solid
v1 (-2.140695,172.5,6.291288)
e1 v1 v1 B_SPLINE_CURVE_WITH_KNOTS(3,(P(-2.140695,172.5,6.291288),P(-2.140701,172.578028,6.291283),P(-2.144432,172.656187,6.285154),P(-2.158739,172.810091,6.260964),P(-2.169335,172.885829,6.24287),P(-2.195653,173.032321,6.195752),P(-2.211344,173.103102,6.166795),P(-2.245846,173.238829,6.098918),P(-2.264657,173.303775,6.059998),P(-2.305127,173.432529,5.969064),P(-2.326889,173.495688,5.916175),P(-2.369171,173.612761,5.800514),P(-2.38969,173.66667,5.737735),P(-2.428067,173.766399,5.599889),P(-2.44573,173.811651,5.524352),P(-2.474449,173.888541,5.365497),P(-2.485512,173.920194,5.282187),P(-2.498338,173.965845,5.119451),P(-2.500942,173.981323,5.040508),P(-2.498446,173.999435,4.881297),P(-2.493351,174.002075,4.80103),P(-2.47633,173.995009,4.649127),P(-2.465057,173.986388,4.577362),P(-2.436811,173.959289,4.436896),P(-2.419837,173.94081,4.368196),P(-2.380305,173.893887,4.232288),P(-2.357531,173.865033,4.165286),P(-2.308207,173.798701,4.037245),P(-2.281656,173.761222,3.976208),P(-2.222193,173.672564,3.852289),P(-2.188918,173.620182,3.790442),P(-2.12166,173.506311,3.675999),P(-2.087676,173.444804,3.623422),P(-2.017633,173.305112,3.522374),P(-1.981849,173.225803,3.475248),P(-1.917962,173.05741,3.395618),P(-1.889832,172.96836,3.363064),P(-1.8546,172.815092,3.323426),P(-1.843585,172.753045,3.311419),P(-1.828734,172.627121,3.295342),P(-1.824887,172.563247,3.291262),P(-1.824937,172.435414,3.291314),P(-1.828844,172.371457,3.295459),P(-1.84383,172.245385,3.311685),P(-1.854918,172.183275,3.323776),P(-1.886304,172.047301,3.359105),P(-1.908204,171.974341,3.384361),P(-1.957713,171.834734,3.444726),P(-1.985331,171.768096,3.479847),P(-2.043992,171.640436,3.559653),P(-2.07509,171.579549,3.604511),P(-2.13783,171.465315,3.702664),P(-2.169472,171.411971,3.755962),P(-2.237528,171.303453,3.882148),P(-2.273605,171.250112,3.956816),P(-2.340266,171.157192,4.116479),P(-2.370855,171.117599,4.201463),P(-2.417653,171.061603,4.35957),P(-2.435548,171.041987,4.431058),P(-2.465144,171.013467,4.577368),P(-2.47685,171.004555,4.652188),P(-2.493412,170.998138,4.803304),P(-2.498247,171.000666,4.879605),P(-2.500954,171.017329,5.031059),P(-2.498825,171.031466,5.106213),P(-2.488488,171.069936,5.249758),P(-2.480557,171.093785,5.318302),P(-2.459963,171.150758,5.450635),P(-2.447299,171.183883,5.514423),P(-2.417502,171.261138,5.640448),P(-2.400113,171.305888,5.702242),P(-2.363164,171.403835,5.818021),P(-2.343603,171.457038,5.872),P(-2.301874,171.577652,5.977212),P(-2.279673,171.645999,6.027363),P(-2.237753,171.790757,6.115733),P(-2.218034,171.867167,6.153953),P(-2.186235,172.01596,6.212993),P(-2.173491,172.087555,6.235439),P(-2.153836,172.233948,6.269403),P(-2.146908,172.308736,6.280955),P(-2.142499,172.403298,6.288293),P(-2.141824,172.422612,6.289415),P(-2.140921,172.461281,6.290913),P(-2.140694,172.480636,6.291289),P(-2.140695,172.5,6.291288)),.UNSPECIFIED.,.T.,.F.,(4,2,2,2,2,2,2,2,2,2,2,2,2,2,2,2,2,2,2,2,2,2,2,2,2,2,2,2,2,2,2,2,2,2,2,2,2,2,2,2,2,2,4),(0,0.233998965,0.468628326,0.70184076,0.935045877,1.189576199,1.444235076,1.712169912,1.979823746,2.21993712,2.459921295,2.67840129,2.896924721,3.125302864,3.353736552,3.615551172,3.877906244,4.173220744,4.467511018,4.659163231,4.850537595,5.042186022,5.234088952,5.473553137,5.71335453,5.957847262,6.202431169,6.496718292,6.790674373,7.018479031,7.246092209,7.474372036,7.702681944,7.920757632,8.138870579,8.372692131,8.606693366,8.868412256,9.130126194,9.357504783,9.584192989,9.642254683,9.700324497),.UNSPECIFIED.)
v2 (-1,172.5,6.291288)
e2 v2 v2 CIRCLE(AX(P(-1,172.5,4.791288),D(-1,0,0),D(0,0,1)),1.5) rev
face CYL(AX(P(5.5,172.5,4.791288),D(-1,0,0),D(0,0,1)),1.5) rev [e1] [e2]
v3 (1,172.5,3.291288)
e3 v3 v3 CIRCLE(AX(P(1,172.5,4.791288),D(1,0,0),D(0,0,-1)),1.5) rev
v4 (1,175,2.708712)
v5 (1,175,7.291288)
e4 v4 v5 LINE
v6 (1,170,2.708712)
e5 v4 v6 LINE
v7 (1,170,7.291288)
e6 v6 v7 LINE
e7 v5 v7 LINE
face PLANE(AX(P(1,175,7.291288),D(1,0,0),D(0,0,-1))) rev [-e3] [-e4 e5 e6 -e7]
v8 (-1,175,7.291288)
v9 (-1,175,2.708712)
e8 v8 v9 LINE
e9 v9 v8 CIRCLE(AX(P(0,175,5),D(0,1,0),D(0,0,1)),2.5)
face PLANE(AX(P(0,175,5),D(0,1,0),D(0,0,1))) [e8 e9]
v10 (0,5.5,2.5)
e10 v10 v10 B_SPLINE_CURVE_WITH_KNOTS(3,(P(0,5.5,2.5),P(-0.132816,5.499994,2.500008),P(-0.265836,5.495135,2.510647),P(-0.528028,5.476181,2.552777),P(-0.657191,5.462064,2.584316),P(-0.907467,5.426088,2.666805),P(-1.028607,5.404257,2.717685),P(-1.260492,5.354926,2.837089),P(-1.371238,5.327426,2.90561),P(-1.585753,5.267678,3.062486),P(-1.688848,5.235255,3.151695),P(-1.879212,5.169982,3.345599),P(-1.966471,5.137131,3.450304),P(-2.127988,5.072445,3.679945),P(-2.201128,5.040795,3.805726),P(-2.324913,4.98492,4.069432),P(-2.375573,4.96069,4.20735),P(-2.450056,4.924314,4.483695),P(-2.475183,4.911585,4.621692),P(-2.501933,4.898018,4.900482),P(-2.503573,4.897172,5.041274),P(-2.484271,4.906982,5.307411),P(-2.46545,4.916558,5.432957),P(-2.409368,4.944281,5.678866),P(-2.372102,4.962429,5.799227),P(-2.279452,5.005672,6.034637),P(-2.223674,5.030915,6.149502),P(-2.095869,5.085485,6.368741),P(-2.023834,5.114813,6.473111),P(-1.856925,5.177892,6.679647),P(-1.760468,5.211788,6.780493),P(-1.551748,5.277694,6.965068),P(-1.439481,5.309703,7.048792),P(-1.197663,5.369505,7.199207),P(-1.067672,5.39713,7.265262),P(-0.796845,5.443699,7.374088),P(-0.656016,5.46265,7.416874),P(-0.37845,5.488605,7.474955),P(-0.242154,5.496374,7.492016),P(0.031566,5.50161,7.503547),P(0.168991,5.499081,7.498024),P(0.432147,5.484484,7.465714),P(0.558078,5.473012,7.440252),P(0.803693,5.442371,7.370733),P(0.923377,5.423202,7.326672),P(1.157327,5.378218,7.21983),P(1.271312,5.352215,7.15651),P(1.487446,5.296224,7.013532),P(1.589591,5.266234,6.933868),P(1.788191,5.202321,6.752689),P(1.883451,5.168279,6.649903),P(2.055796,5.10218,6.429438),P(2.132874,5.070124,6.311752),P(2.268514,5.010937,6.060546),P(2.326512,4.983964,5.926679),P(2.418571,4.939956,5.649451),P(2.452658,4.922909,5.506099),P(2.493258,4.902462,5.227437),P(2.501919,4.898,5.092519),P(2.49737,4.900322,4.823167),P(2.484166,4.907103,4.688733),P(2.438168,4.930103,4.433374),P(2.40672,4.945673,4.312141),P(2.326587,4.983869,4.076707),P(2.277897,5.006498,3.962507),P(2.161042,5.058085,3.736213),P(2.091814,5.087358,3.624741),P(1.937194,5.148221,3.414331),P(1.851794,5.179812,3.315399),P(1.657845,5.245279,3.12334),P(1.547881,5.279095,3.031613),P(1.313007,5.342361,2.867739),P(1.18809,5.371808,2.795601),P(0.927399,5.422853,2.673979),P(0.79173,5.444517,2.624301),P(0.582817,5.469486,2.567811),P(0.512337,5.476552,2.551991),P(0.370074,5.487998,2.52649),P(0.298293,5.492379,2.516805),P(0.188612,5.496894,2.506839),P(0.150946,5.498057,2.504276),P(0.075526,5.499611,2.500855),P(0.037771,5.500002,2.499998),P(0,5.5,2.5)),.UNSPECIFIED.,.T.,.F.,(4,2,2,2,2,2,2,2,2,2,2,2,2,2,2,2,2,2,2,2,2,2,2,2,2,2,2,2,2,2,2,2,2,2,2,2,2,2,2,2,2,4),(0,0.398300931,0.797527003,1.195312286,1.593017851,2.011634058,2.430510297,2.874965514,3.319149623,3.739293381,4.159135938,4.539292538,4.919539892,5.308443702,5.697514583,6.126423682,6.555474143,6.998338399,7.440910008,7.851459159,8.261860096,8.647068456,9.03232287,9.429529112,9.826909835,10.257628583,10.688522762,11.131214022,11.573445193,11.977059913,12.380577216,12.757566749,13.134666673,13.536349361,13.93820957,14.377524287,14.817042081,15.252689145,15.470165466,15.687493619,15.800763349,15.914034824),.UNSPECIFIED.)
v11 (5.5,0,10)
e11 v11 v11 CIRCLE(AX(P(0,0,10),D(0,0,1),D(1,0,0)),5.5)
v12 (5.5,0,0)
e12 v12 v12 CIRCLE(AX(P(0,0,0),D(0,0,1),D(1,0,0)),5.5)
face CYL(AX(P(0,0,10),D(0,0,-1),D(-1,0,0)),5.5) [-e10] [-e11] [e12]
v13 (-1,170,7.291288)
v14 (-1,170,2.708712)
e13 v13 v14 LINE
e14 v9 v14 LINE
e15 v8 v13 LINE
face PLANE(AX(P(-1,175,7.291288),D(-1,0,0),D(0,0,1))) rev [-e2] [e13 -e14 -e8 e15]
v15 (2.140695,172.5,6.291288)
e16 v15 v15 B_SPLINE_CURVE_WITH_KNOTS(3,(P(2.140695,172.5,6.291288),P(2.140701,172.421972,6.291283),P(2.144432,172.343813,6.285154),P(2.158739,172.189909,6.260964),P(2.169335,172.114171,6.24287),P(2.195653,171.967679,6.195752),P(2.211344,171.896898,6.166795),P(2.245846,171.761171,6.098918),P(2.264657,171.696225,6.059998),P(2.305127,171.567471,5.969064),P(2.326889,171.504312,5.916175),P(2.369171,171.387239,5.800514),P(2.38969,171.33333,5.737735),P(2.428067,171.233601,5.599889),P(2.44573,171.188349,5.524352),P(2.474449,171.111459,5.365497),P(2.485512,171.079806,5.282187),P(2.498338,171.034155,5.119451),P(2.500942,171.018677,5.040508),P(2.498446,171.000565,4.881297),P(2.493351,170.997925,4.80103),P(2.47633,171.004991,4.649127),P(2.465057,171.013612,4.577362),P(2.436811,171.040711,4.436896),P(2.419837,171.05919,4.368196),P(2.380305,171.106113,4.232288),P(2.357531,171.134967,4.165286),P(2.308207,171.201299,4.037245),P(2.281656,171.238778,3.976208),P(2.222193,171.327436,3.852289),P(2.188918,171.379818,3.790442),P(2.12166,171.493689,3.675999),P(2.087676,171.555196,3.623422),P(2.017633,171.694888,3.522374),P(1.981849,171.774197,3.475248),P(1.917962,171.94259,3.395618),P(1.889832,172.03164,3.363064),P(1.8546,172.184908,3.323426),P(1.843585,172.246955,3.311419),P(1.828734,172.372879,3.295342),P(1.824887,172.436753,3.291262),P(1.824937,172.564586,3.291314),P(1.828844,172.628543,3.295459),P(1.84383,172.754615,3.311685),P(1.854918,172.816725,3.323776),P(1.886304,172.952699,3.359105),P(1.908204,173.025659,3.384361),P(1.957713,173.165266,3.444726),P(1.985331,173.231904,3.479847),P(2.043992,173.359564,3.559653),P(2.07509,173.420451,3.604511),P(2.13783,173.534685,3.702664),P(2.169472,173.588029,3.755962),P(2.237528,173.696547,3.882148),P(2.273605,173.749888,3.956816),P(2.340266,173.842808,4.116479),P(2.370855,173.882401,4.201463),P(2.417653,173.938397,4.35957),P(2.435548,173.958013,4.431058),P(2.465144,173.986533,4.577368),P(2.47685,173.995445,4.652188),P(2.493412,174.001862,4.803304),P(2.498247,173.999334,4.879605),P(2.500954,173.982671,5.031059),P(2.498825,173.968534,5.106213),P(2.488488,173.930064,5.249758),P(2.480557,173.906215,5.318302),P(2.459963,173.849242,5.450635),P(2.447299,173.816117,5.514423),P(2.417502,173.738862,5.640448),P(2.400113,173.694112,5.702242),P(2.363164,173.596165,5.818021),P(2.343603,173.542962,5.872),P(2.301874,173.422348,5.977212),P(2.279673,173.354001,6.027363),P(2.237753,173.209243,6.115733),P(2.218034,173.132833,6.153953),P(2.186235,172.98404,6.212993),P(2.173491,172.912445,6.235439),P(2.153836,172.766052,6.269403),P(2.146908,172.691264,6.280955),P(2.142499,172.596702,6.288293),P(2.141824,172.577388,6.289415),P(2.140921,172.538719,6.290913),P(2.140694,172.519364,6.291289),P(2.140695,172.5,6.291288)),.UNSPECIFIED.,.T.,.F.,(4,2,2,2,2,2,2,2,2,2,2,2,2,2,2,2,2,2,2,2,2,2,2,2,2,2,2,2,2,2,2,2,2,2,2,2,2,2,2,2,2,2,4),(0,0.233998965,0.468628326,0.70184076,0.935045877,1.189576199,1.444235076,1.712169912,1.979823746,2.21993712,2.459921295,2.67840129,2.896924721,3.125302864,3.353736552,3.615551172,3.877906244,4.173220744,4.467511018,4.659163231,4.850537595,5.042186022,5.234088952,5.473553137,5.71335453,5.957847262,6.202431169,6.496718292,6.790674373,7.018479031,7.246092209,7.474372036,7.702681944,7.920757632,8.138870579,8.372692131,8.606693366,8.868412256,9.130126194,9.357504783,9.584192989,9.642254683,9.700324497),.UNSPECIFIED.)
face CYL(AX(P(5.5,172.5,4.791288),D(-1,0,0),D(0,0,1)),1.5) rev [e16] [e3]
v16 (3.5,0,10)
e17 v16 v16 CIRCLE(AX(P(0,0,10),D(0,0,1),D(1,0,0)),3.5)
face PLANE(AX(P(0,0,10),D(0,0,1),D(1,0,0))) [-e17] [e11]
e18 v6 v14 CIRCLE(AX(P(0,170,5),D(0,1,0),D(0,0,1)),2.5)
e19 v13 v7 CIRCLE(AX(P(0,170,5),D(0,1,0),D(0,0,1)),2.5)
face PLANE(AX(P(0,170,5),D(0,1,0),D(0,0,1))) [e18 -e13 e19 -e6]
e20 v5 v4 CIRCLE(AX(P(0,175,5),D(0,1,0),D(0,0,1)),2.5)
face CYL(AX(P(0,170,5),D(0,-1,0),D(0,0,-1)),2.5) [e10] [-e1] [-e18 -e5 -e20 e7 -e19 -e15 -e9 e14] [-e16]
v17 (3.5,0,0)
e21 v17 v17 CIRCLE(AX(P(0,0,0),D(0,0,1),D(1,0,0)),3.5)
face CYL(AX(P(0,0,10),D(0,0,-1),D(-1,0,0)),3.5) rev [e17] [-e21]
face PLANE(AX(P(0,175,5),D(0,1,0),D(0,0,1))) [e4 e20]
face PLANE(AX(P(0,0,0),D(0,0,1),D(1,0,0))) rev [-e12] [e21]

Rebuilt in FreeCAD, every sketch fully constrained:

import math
import FreeCAD as App
import Part
import Sketcher
from FreeCAD import Vector
Q = App.Units.Quantity

doc = App.newDocument("Part")
body = doc.addObject("PartDesign::Body", "Body")

# Sketch on XY plane
sketch1 = doc.addObject("Sketcher::SketchObject", "Sketch")
body.addObject(sketch1)
sketch1.AttachmentSupport = (doc.XY_Plane, [""])
sketch1.MapMode = "FlatFace"
sketch1.addGeometry([
    Part.Circle(Vector(0, 0, 0), Vector(0, 0, 1), 5.5),
    Part.Circle(Vector(0, 0, 0), Vector(0, 0, 1), 3.5),
], False)
sketch1.addConstraint([
    Sketcher.Constraint("Coincident", 0, 3, -1, 1),
    Sketcher.Constraint("Coincident", 1, 3, -1, 1),
    Sketcher.Constraint("Diameter", 0, Q("11 mm")),
    Sketcher.Constraint("Diameter", 1, Q("7 mm")),
])
pad1 = doc.addObject("PartDesign::Pad", "Pad")
body.addObject(pad1)
pad1.Profile = sketch1
pad1.Length = 10

# Sketch on XZ plane
sketch2 = doc.addObject("Sketcher::SketchObject", "Sketch001")
body.addObject(sketch2)
sketch2.AttachmentSupport = (doc.XZ_Plane, [""])
sketch2.MapMode = "FlatFace"
sketch2.addGeometry(Part.Circle(Vector(0, 5, 0), Vector(0, 0, 1), 2.5), False)
sketch2.addConstraint([
    Sketcher.Constraint("PointOnObject", 0, 3, -2),
    Sketcher.Constraint("Diameter", 0, Q("5 mm")),
    Sketcher.Constraint("DistanceY", -1, 1, 0, 3, Q("5 mm")),
])
pad2 = doc.addObject("PartDesign::Pad", "Pad001")
body.addObject(pad2)
pad2.Profile = sketch2
pad2.Length = 170
pad2.Reversed = True

# Sketch on XY plane
sketch3 = doc.addObject("Sketcher::SketchObject", "Sketch002")
body.addObject(sketch3)
sketch3.AttachmentSupport = (doc.XY_Plane, [""])
sketch3.MapMode = "FlatFace"
sketch3.AttachmentOffset = App.Placement(Vector(0, 0, 10), App.Rotation())
sketch3.addGeometry(Part.Circle(Vector(0, 0, 0), Vector(0, 0, 1), 3.5), False)
sketch3.addConstraint([
    Sketcher.Constraint("Coincident", 0, 3, -1, 1),
    Sketcher.Constraint("Diameter", 0, Q("7 mm")),
])
pocket1 = doc.addObject("PartDesign::Pocket", "Pocket")
body.addObject(pocket1)
pocket1.Profile = sketch3
pocket1.Type = "ThroughAll"

# Sketch on XZ plane
sketch4 = doc.addObject("Sketcher::SketchObject", "Sketch003")
body.addObject(sketch4)
sketch4.AttachmentSupport = (doc.XZ_Plane, [""])
sketch4.MapMode = "FlatFace"
sketch4.AttachmentOffset = App.Placement(Vector(0, 0, -170), App.Rotation())
sketch4.addGeometry([
    Part.LineSegment(Vector(1, 2.7, 0), Vector(1, 7.3, 0)),
    Part.ArcOfCircle(Part.Circle(Vector(0, 5, 0), Vector(0, 0, 1), 2.5), math.radians(-66), math.radians(66)),
    Part.LineSegment(Vector(-1, 7.3, 0), Vector(-1, 2.7, 0)),
    Part.ArcOfCircle(Part.Circle(Vector(0, 5, 0), Vector(0, 0, 1), 2.5), math.radians(114), math.radians(246)),
], False)
sketch4.addConstraint([
    Sketcher.Constraint("Coincident", 0, 1, 1, 1),
    Sketcher.Constraint("Coincident", 1, 2, 0, 2),
    Sketcher.Constraint("Coincident", 2, 1, 3, 1),
    Sketcher.Constraint("Coincident", 3, 2, 2, 2),
    Sketcher.Constraint("Vertical", 0),
    Sketcher.Constraint("Vertical", 2),
    Sketcher.Constraint("Coincident", 3, 3, 1, 3),
    Sketcher.Constraint("Equal", 1, 3),
    Sketcher.Constraint("Symmetric", 1, 2, 2, 1, -2),
    Sketcher.Constraint("Radius", 1, Q("2.5 mm")),
    Sketcher.Constraint("DistanceY", -1, 1, 1, 3, Q("5 mm")),
    Sketcher.Constraint("DistanceX", -1, 1, 0, 1, Q("1 mm")),
])
pad3 = doc.addObject("PartDesign::Pad", "Pad002")
body.addObject(pad3)
pad3.Profile = sketch4
pad3.Length = 5
pad3.Reversed = True

# Sketch on YZ plane
sketch5 = doc.addObject("Sketcher::SketchObject", "Sketch004")
body.addObject(sketch5)
sketch5.AttachmentSupport = (doc.YZ_Plane, [""])
sketch5.MapMode = "FlatFace"
sketch5.AttachmentOffset = App.Placement(Vector(0, 0, -1), App.Rotation())
sketch5.addGeometry(Part.Circle(Vector(172.5, 4.8, 0), Vector(0, 0, 1), 1.5), False)
sketch5.addConstraint([
    Sketcher.Constraint("Diameter", 0, Q("3 mm")),
    Sketcher.Constraint("DistanceX", -1, 1, 0, 3, Q("172.5 mm")),
    Sketcher.Constraint("DistanceY", -1, 1, 0, 3, Q("4.791288 mm")),
])
pocket2 = doc.addObject("PartDesign::Pocket", "Pocket001")
body.addObject(pocket2)
pocket2.Profile = sketch5
pocket2.Type = "ThroughAll"
pocket2.Midplane = True

doc.recompute()
